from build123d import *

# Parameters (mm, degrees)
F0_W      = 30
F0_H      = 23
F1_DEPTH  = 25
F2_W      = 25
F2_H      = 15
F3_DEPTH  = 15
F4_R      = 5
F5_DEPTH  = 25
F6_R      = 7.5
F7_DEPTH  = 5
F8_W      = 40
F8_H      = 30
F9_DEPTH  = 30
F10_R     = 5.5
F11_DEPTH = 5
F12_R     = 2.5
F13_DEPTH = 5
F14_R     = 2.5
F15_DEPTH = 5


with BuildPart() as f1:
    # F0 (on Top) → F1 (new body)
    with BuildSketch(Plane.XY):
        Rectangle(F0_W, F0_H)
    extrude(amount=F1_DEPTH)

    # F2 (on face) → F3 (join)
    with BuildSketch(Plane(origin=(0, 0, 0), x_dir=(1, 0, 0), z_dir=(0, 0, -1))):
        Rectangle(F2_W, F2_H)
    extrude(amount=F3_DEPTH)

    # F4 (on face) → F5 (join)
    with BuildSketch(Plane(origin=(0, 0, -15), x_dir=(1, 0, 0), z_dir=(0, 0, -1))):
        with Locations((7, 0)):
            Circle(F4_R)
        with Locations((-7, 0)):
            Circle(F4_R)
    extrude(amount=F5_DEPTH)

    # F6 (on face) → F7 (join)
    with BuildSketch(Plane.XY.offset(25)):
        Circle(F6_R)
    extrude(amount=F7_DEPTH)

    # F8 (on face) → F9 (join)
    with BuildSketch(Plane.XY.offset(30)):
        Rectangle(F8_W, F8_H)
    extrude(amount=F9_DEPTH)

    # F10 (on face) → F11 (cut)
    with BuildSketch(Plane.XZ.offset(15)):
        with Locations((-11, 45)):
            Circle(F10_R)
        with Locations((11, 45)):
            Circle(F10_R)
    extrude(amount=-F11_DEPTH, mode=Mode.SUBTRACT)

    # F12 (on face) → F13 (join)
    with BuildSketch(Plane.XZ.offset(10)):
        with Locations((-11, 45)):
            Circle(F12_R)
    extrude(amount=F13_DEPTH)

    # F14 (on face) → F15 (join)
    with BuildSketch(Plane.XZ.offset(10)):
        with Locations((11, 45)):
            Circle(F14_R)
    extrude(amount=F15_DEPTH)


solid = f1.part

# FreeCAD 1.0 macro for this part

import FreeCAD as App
import Part
import Sketcher

V = App.Vector


def add_polygon(sketch, points):
    """Adds a closed chain of lines whose ends are joined by coincident constraints."""
    first, n = sketch.GeometryCount, len(points)
    for a, b in zip(points, points[1:] + points[:1]):
        sketch.addGeometry(Part.LineSegment(App.Vector(*a, 0), App.Vector(*b, 0)), False)
    for i in range(n):
        sketch.addConstraint(Sketcher.Constraint("Coincident", first + i, 2, first + (i + 1) % n, 1))

doc = App.newDocument("Part")
body = doc.addObject("PartDesign::Body", "Body")

sketch1 = body.newObject("Sketcher::SketchObject", "Sketch")
sketch1.AttachmentSupport = (doc.getObject("XY_Plane"), [""])
sketch1.MapMode = "FlatFace"
add_polygon(sketch1, [(-15, 11.5), (-15, -11.5), (15, -11.5), (15, 11.5)])
sketch1.addConstraint([
    Sketcher.Constraint("Vertical", 0),
    Sketcher.Constraint("Horizontal", 1),
    Sketcher.Constraint("Vertical", 2),
    Sketcher.Constraint("Horizontal", 3),
    Sketcher.Constraint("Symmetric", 0, 2, 2, 2, -1, 1),
    Sketcher.Constraint("DistanceX", 1, 1, 1, 2, 30.0),
    Sketcher.Constraint("DistanceY", 0, 2, 0, 1, 23.0),
])
pad1 = body.newObject("PartDesign::Pad", "Pad")
pad1.Profile = sketch1
pad1.Length = 25

sketch2 = body.newObject("Sketcher::SketchObject", "Sketch001")
sketch2.AttachmentSupport = (doc.getObject("XY_Plane"), [""])
sketch2.MapMode = "FlatFace"
add_polygon(sketch2, [(-12.5, -7.5), (-12.5, 7.5), (12.5, 7.5), (12.5, -7.5)])
sketch2.addConstraint([
    Sketcher.Constraint("Vertical", 0),
    Sketcher.Constraint("Horizontal", 1),
    Sketcher.Constraint("Vertical", 2),
    Sketcher.Constraint("Horizontal", 3),
    Sketcher.Constraint("Symmetric", 0, 2, 2, 2, -1, 1),
    Sketcher.Constraint("DistanceX", 1, 1, 1, 2, 25.0),
    Sketcher.Constraint("DistanceY", 0, 1, 0, 2, 15.0),
])
pad2 = body.newObject("PartDesign::Pad", "Pad001")
pad2.Profile = sketch2
pad2.Length = 15
pad2.Reversed = True

sketch3 = body.newObject("Sketcher::SketchObject", "Sketch002")
sketch3.AttachmentSupport = (doc.getObject("XY_Plane"), [""])
sketch3.MapMode = "FlatFace"
sketch3.AttachmentOffset = App.Placement(V(0, 0, -15), App.Rotation())
sketch3.addGeometry([
    Part.Circle(V(7, 0, 0), V(0, 0, 1), 5),
    Part.Circle(V(-7, 0, 0), V(0, 0, 1), 5),
], False)
sketch3.addConstraint([
    Sketcher.Constraint("Equal", 0, 1),
    Sketcher.Constraint("Symmetric", 0, 3, 1, 3, -1, 1),
    Sketcher.Constraint("PointOnObject", 0, 3, -1),
    Sketcher.Constraint("Diameter", 0, 10.0),
    Sketcher.Constraint("DistanceX", -1, 1, 0, 3, 7.0),
])
pad3 = body.newObject("PartDesign::Pad", "Pad002")
pad3.Profile = sketch3
pad3.Length = 25
pad3.Reversed = True

sketch4 = body.newObject("Sketcher::SketchObject", "Sketch003")
sketch4.AttachmentSupport = (doc.getObject("XY_Plane"), [""])
sketch4.MapMode = "FlatFace"
sketch4.AttachmentOffset = App.Placement(V(0, 0, 25), App.Rotation())
sketch4.addGeometry(Part.Circle(V(0, 0, 0), V(0, 0, 1), 7.5), False)
sketch4.addConstraint([
    Sketcher.Constraint("Coincident", 0, 3, -1, 1),
    Sketcher.Constraint("Diameter", 0, 15.0),
])
pad4 = body.newObject("PartDesign::Pad", "Pad003")
pad4.Profile = sketch4
pad4.Length = 5

sketch5 = body.newObject("Sketcher::SketchObject", "Sketch004")
sketch5.AttachmentSupport = (doc.getObject("XY_Plane"), [""])
sketch5.MapMode = "FlatFace"
sketch5.AttachmentOffset = App.Placement(V(0, 0, 30), App.Rotation())
add_polygon(sketch5, [(-20, 15), (-20, -15), (20, -15), (20, 15)])
sketch5.addConstraint([
    Sketcher.Constraint("Vertical", 0),
    Sketcher.Constraint("Horizontal", 1),
    Sketcher.Constraint("Vertical", 2),
    Sketcher.Constraint("Horizontal", 3),
    Sketcher.Constraint("Symmetric", 0, 2, 2, 2, -1, 1),
    Sketcher.Constraint("DistanceX", 1, 1, 1, 2, 40.0),
    Sketcher.Constraint("DistanceY", 0, 2, 0, 1, 30.0),
])
pad5 = body.newObject("PartDesign::Pad", "Pad004")
pad5.Profile = sketch5
pad5.Length = 30

sketch6 = body.newObject("Sketcher::SketchObject", "Sketch005")
sketch6.AttachmentSupport = (doc.getObject("XZ_Plane"), [""])
sketch6.MapMode = "FlatFace"
sketch6.AttachmentOffset = App.Placement(V(0, 0, 15), App.Rotation())
sketch6.addGeometry([
    Part.Circle(V(-11, 45, 0), V(0, 0, 1), 5.5),
    Part.Circle(V(11, 45, 0), V(0, 0, 1), 5.5),
], False)
sketch6.addConstraint([
    Sketcher.Constraint("Equal", 0, 1),
    Sketcher.Constraint("Symmetric", 0, 3, 1, 3, -2),
    Sketcher.Constraint("Diameter", 0, 11.0),
    Sketcher.Constraint("DistanceX", 0, 3, -1, 1, 11.0),
    Sketcher.Constraint("DistanceY", -1, 1, 0, 3, 45.0),
])
pocket1 = body.newObject("PartDesign::Pocket", "Pocket")
pocket1.Profile = sketch6
pocket1.Length = 5

sketch7 = body.newObject("Sketcher::SketchObject", "Sketch006")
sketch7.AttachmentSupport = (doc.getObject("XZ_Plane"), [""])
sketch7.MapMode = "FlatFace"
sketch7.AttachmentOffset = App.Placement(V(0, 0, 10), App.Rotation())
sketch7.addGeometry(Part.Circle(V(-11, 45, 0), V(0, 0, 1), 2.5), False)
sketch7.addConstraint([
    Sketcher.Constraint("Diameter", 0, 5.0),
    Sketcher.Constraint("DistanceX", 0, 3, -1, 1, 11.0),
    Sketcher.Constraint("DistanceY", -1, 1, 0, 3, 45.0),
])
pad6 = body.newObject("PartDesign::Pad", "Pad005")
pad6.Profile = sketch7
pad6.Length = 5

sketch8 = body.newObject("Sketcher::SketchObject", "Sketch007")
sketch8.AttachmentSupport = (doc.getObject("XZ_Plane"), [""])
sketch8.MapMode = "FlatFace"
sketch8.AttachmentOffset = App.Placement(V(0, 0, 10), App.Rotation())
sketch8.addGeometry(Part.Circle(V(11, 45, 0), V(0, 0, 1), 2.5), False)
sketch8.addConstraint([
    Sketcher.Constraint("Diameter", 0, 5.0),
    Sketcher.Constraint("DistanceX", -1, 1, 0, 3, 11.0),
    Sketcher.Constraint("DistanceY", -1, 1, 0, 3, 45.0),
])
pad7 = body.newObject("PartDesign::Pad", "Pad006")
pad7.Profile = sketch8
pad7.Length = 5

doc.recompute()
